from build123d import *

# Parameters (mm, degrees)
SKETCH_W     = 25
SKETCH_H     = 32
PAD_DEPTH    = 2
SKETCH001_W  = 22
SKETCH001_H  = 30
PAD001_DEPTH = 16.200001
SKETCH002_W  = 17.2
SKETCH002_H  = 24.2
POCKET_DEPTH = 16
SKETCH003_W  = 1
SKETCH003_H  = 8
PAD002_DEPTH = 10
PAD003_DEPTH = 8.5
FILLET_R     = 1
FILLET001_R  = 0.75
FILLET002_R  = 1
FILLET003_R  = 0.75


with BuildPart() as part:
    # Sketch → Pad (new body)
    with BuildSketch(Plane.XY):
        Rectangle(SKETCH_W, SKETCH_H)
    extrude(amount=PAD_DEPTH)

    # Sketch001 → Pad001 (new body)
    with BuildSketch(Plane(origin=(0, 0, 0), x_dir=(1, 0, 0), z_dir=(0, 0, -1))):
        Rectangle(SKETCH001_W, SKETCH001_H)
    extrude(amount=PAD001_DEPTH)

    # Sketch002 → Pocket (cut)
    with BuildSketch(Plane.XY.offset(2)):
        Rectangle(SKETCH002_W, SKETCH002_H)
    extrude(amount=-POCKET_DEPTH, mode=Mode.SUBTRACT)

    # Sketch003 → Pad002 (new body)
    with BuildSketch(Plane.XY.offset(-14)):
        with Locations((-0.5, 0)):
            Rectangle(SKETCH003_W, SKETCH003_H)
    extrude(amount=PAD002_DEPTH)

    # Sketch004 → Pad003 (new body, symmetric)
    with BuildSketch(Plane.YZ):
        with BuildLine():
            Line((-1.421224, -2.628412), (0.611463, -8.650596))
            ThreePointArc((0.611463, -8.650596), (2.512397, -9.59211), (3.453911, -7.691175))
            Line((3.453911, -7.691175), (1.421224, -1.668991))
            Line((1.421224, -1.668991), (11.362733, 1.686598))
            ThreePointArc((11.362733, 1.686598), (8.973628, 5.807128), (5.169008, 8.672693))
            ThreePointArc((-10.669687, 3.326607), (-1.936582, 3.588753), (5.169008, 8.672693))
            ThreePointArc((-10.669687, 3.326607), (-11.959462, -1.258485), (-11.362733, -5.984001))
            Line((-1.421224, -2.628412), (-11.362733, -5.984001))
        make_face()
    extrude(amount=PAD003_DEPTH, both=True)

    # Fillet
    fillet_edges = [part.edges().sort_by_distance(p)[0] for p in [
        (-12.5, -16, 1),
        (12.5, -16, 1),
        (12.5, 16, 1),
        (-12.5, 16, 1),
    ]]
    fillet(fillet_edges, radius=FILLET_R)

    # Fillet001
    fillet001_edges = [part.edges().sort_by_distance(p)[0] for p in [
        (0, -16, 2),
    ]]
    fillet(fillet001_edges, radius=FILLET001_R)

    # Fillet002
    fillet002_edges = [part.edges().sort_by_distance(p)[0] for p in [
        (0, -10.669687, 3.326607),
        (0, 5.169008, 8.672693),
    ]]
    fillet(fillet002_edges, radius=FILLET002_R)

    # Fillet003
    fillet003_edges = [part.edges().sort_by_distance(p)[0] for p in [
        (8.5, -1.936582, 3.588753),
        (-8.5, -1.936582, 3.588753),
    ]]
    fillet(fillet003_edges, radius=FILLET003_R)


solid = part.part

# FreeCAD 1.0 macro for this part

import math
import FreeCAD as App
import Part
import Sketcher

V = App.Vector
Q = App.Units.Quantity


def edges_at(feature, points):
    """Names of the edges that pass closest to the given points."""
    edges = feature.Shape.Edges
    near = lambda p: min(range(len(edges)), key=lambda i: edges[i].distToShape(Part.Vertex(*p))[0])
    return sorted({f"Edge{near(p) + 1}" for p in points})

doc = App.newDocument("Part")
body = doc.addObject("PartDesign::Body", "Body")

sketch1 = body.newObject("Sketcher::SketchObject", "Sketch")
sketch1.AttachmentSupport = (doc.getObject("XY_Plane"), [""])
sketch1.MapMode = "FlatFace"
sketch1.addGeometry([
    Part.LineSegment(V(-12, 16, 0), V(-12, -16, 0)),
    Part.LineSegment(V(-12, -16, 0), V(12, -16, 0)),
    Part.LineSegment(V(12, -16, 0), V(12, 16, 0)),
    Part.LineSegment(V(12, 16, 0), V(-12, 16, 0)),
], False)
sketch1.addConstraint([
    Sketcher.Constraint("Coincident", 0, 2, 1, 1),
    Sketcher.Constraint("Coincident", 1, 2, 2, 1),
    Sketcher.Constraint("Coincident", 2, 2, 3, 1),
    Sketcher.Constraint("Coincident", 3, 2, 0, 1),
    Sketcher.Constraint("Vertical", 0),
    Sketcher.Constraint("Horizontal", 1),
    Sketcher.Constraint("Vertical", 2),
    Sketcher.Constraint("Horizontal", 3),
    Sketcher.Constraint("Symmetric", 0, 2, 2, 2, -1, 1),
    Sketcher.Constraint("DistanceX", 1, 1, 1, 2, Q("25 mm")),
    Sketcher.Constraint("DistanceY", 0, 2, 0, 1, Q("32 mm")),
])
pad1 = body.newObject("PartDesign::Pad", "Pad")
pad1.Profile = sketch1
pad1.Length = 2

sketch2 = body.newObject("Sketcher::SketchObject", "Sketch001")
sketch2.AttachmentSupport = (doc.getObject("XY_Plane"), [""])
sketch2.MapMode = "FlatFace"
sketch2.addGeometry([
    Part.LineSegment(V(-11, -15, 0), V(-11, 15, 0)),
    Part.LineSegment(V(-11, 15, 0), V(11, 15, 0)),
    Part.LineSegment(V(11, 15, 0), V(11, -15, 0)),
    Part.LineSegment(V(11, -15, 0), V(-11, -15, 0)),
], False)
sketch2.addConstraint([
    Sketcher.Constraint("Coincident", 0, 2, 1, 1),
    Sketcher.Constraint("Coincident", 1, 2, 2, 1),
    Sketcher.Constraint("Coincident", 2, 2, 3, 1),
    Sketcher.Constraint("Coincident", 3, 2, 0, 1),
    Sketcher.Constraint("Vertical", 0),
    Sketcher.Constraint("Horizontal", 1),
    Sketcher.Constraint("Vertical", 2),
    Sketcher.Constraint("Horizontal", 3),
    Sketcher.Constraint("Symmetric", 0, 2, 2, 2, -1, 1),
    Sketcher.Constraint("DistanceX", 1, 1, 1, 2, Q("22 mm")),
    Sketcher.Constraint("DistanceY", 0, 1, 0, 2, Q("30 mm")),
])
pad2 = body.newObject("PartDesign::Pad", "Pad001")
pad2.Profile = sketch2
pad2.Length = 16.200001
pad2.Reversed = True

sketch3 = body.newObject("Sketcher::SketchObject", "Sketch002")
sketch3.AttachmentSupport = (doc.getObject("XY_Plane"), [""])
sketch3.MapMode = "FlatFace"
sketch3.AttachmentOffset = App.Placement(V(0, 0, 2), App.Rotation())
sketch3.addGeometry([
    Part.LineSegment(V(-9, 12, 0), V(-9, -12, 0)),
    Part.LineSegment(V(-9, -12, 0), V(9, -12, 0)),
    Part.LineSegment(V(9, -12, 0), V(9, 12, 0)),
    Part.LineSegment(V(9, 12, 0), V(-9, 12, 0)),
], False)
sketch3.addConstraint([
    Sketcher.Constraint("Coincident", 0, 2, 1, 1),
    Sketcher.Constraint("Coincident", 1, 2, 2, 1),
    Sketcher.Constraint("Coincident", 2, 2, 3, 1),
    Sketcher.Constraint("Coincident", 3, 2, 0, 1),
    Sketcher.Constraint("Vertical", 0),
    Sketcher.Constraint("Horizontal", 1),
    Sketcher.Constraint("Vertical", 2),
    Sketcher.Constraint("Horizontal", 3),
    Sketcher.Constraint("Symmetric", 0, 2, 2, 2, -1, 1),
    Sketcher.Constraint("DistanceX", 1, 1, 1, 2, Q("17.2 mm")),
    Sketcher.Constraint("DistanceY", 0, 2, 0, 1, Q("24.2 mm")),
])
pocket1 = body.newObject("PartDesign::Pocket", "Pocket")
pocket1.Profile = sketch3
pocket1.Length = 16

sketch4 = body.newObject("Sketcher::SketchObject", "Sketch003")
sketch4.AttachmentSupport = (doc.getObject("XY_Plane"), [""])
sketch4.MapMode = "FlatFace"
sketch4.AttachmentOffset = App.Placement(V(0, 0, -14), App.Rotation())
sketch4.addGeometry([
    Part.LineSegment(V(-1, 4, 0), V(-1, -4, 0)),
    Part.LineSegment(V(-1, -4, 0), V(0, -4, 0)),
    Part.LineSegment(V(0, -4, 0), V(0, 4, 0)),
    Part.LineSegment(V(0, 4, 0), V(-1, 4, 0)),
], False)
sketch4.addConstraint([
    Sketcher.Constraint("Coincident", 0, 2, 1, 1),
    Sketcher.Constraint("Coincident", 1, 2, 2, 1),
    Sketcher.Constraint("Coincident", 2, 2, 3, 1),
    Sketcher.Constraint("Coincident", 3, 2, 0, 1),
    Sketcher.Constraint("Vertical", 0),
    Sketcher.Constraint("Horizontal", 1),
    Sketcher.Constraint("Vertical", 2),
    Sketcher.Constraint("Horizontal", 3),
    Sketcher.Constraint("Symmetric", 1, 2, 2, 2, -1, 1),
    Sketcher.Constraint("DistanceX", 1, 1, 1, 2, Q("1 mm")),
    Sketcher.Constraint("DistanceY", 0, 2, 0, 1, Q("8 mm")),
])
pad3 = body.newObject("PartDesign::Pad", "Pad002")
pad3.Profile = sketch4
pad3.Length = 10

sketch5 = body.newObject("Sketcher::SketchObject", "Sketch004")
sketch5.AttachmentSupport = (doc.getObject("YZ_Plane"), [""])
sketch5.MapMode = "FlatFace"
sketch5.addGeometry([
    Part.LineSegment(V(-1.4, -2.6, 0), V(0.6, -8.7, 0)),
    Part.ArcOfCircle(Part.Circle(V(2, -8.2, 0), V(0, 0, 1), 1.5), math.radians(-161), math.radians(19)),
    Part.LineSegment(V(3.5, -7.7, 0), V(1.4, -1.7, 0)),
    Part.LineSegment(V(1.4, -1.7, 0), V(11.4, 1.7, 0)),
    Part.ArcOfCircle(Part.Circle(V(0, -2.1, 0), V(0, 0, 1), 12), math.radians(19), math.radians(64)),
    Part.ArcOfCircle(Part.Circle(V(-6.7, 17.8, 0), V(0, 0, 1), 15), math.radians(-105), math.radians(-37)),
    Part.ArcOfCircle(Part.Circle(V(0, -2.1, 0), V(0, 0, 1), 12), math.radians(153), math.radians(199)),
    Part.LineSegment(V(-11.4, -6, 0), V(-1.4, -2.6, 0)),
], False)
sketch5.addConstraint([
    Sketcher.Constraint("Tangent", 0, 2, 1, 1),
    Sketcher.Constraint("Tangent", 1, 2, 2, 1),
    Sketcher.Constraint("Coincident", 2, 2, 3, 1),
    Sketcher.Constraint("Coincident", 3, 2, 4, 1),
    Sketcher.Constraint("Coincident", 4, 2, 5, 2),
    Sketcher.Constraint("Coincident", 5, 1, 6, 1),
    Sketcher.Constraint("Coincident", 6, 2, 7, 1),
    Sketcher.Constraint("Coincident", 7, 2, 0, 1),
    Sketcher.Constraint("Coincident", 6, 3, 4, 3),
    Sketcher.Constraint("PointOnObject", 4, 3, -2),
    Sketcher.Constraint("Parallel", 0, 2),
    Sketcher.Constraint("Perpendicular", 2, 3),
    Sketcher.Constraint("Parallel", 3, 7),
    Sketcher.Constraint("Equal", 0, 2),
    Sketcher.Constraint("Equal", 3, 7),
    Sketcher.Constraint("Radius", 5, Q("14.999999 mm")),
    Sketcher.Constraint("Radius", 1, Q("1.5 mm")),
    Sketcher.Constraint("Radius", 4, Q("11.992549 mm")),
    Sketcher.Constraint("DistanceY", 6, 2, -1, 1, Q("5.984001 mm")),
    Sketcher.Constraint("Radius", 6, Q("11.992552 mm")),
    Sketcher.Constraint("DistanceY", 4, 3, -1, 1, Q("2.148702 mm")),
    Sketcher.Constraint("DistanceY", 6, 3, 3, 2, Q("3.8353 mm")),
    Sketcher.Constraint("DistanceY", 4, 2, 5, 3, Q("9.1283 mm")),
    Sketcher.Constraint("DistanceY", 2, 2, 5, 1, Q("4.995598 mm")),
    Sketcher.Constraint("DistanceX", -1, 1, 1, 2, Q("3.453911 mm")),
])
pad4 = body.newObject("PartDesign::Pad", "Pad003")
pad4.Profile = sketch5
pad4.Length = 17
pad4.Midplane = True
doc.recompute()

fillet = body.newObject("PartDesign::Fillet", "Fillet")
fillet.Base = (pad4, edges_at(pad4, [
    (-12.5, -16, 1),
    (12.5, -16, 1),
    (12.5, 16, 1),
    (-12.5, 16, 1),
]))
fillet.Radius = 1
doc.recompute()

fillet2 = body.newObject("PartDesign::Fillet", "Fillet001")
fillet2.Base = (fillet, edges_at(fillet, [(0, -16, 2)]))
fillet2.Radius = 0.75
doc.recompute()

fillet3 = body.newObject("PartDesign::Fillet", "Fillet002")
fillet3.Base = (fillet2, edges_at(fillet2, [(0, -10.67, 3.327), (0, 5.169, 8.673)]))
fillet3.Radius = 1
doc.recompute()

fillet4 = body.newObject("PartDesign::Fillet", "Fillet003")
fillet4.Base = (fillet3, edges_at(fillet3, [(8.5, -1.937, 3.589), (-8.5, -1.937, 3.589)]))
fillet4.Radius = 0.75

doc.recompute()
